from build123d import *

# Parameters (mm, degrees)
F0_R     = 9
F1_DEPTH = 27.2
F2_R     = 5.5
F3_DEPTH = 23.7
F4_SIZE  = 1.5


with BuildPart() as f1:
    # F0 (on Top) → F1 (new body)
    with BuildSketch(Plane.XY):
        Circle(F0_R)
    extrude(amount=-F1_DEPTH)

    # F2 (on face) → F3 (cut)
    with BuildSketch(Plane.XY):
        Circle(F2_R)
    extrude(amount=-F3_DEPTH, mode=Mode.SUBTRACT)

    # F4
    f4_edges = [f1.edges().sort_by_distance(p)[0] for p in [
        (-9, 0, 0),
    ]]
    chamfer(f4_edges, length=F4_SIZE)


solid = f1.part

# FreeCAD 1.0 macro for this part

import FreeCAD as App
import Part
import Sketcher
Q = App.Units.Quantity


def edges_at(feature, points):
    """Names of the edges that pass closest to the given points."""
    edges = feature.Shape.Edges
    near = lambda p: min(range(len(edges)), key=lambda i: edges[i].distToShape(Part.Vertex(*p))[0])
    return sorted({f"Edge{near(p) + 1}" for p in points})

doc = App.newDocument("Part")
body = doc.addObject("PartDesign::Body", "Body")

# Sketch on XY plane
sketch1 = body.newObject("Sketcher::SketchObject", "Sketch")
sketch1.AttachmentSupport = (doc.getObject("XY_Plane"), [""])
sketch1.MapMode = "FlatFace"
sketch1.addGeometry(Part.Circle(App.Vector(0, 0, 0), App.Vector(0, 0, 1), 9), False)
sketch1.addConstraint(Sketcher.Constraint("Coincident", 0, 3, -1, 1))
sketch1.addConstraint(Sketcher.Constraint("Diameter", 0, Q("18 mm")))
pad1 = body.newObject("PartDesign::Pad", "Pad")
pad1.Profile = sketch1
pad1.Length = 27.2
pad1.Reversed = True

# Sketch on XY plane
sketch2 = body.newObject("Sketcher::SketchObject", "Sketch001")
sketch2.AttachmentSupport = (doc.getObject("XY_Plane"), [""])
sketch2.MapMode = "FlatFace"
sketch2.addGeometry(Part.Circle(App.Vector(0, 0, 0), App.Vector(0, 0, 1), 6), False)
sketch2.addConstraint(Sketcher.Constraint("Coincident", 0, 3, -1, 1))
sketch2.addConstraint(Sketcher.Constraint("Diameter", 0, Q("11 mm")))
pocket1 = body.newObject("PartDesign::Pocket", "Pocket")
pocket1.Profile = sketch2
pocket1.Length = 23.7
doc.recompute()

chamfer = body.newObject("PartDesign::Chamfer", "Chamfer")
chamfer.Base = (pocket1, edges_at(pocket1, [(-9, 0, 0)]))
chamfer.Size = 1.5

doc.recompute()
